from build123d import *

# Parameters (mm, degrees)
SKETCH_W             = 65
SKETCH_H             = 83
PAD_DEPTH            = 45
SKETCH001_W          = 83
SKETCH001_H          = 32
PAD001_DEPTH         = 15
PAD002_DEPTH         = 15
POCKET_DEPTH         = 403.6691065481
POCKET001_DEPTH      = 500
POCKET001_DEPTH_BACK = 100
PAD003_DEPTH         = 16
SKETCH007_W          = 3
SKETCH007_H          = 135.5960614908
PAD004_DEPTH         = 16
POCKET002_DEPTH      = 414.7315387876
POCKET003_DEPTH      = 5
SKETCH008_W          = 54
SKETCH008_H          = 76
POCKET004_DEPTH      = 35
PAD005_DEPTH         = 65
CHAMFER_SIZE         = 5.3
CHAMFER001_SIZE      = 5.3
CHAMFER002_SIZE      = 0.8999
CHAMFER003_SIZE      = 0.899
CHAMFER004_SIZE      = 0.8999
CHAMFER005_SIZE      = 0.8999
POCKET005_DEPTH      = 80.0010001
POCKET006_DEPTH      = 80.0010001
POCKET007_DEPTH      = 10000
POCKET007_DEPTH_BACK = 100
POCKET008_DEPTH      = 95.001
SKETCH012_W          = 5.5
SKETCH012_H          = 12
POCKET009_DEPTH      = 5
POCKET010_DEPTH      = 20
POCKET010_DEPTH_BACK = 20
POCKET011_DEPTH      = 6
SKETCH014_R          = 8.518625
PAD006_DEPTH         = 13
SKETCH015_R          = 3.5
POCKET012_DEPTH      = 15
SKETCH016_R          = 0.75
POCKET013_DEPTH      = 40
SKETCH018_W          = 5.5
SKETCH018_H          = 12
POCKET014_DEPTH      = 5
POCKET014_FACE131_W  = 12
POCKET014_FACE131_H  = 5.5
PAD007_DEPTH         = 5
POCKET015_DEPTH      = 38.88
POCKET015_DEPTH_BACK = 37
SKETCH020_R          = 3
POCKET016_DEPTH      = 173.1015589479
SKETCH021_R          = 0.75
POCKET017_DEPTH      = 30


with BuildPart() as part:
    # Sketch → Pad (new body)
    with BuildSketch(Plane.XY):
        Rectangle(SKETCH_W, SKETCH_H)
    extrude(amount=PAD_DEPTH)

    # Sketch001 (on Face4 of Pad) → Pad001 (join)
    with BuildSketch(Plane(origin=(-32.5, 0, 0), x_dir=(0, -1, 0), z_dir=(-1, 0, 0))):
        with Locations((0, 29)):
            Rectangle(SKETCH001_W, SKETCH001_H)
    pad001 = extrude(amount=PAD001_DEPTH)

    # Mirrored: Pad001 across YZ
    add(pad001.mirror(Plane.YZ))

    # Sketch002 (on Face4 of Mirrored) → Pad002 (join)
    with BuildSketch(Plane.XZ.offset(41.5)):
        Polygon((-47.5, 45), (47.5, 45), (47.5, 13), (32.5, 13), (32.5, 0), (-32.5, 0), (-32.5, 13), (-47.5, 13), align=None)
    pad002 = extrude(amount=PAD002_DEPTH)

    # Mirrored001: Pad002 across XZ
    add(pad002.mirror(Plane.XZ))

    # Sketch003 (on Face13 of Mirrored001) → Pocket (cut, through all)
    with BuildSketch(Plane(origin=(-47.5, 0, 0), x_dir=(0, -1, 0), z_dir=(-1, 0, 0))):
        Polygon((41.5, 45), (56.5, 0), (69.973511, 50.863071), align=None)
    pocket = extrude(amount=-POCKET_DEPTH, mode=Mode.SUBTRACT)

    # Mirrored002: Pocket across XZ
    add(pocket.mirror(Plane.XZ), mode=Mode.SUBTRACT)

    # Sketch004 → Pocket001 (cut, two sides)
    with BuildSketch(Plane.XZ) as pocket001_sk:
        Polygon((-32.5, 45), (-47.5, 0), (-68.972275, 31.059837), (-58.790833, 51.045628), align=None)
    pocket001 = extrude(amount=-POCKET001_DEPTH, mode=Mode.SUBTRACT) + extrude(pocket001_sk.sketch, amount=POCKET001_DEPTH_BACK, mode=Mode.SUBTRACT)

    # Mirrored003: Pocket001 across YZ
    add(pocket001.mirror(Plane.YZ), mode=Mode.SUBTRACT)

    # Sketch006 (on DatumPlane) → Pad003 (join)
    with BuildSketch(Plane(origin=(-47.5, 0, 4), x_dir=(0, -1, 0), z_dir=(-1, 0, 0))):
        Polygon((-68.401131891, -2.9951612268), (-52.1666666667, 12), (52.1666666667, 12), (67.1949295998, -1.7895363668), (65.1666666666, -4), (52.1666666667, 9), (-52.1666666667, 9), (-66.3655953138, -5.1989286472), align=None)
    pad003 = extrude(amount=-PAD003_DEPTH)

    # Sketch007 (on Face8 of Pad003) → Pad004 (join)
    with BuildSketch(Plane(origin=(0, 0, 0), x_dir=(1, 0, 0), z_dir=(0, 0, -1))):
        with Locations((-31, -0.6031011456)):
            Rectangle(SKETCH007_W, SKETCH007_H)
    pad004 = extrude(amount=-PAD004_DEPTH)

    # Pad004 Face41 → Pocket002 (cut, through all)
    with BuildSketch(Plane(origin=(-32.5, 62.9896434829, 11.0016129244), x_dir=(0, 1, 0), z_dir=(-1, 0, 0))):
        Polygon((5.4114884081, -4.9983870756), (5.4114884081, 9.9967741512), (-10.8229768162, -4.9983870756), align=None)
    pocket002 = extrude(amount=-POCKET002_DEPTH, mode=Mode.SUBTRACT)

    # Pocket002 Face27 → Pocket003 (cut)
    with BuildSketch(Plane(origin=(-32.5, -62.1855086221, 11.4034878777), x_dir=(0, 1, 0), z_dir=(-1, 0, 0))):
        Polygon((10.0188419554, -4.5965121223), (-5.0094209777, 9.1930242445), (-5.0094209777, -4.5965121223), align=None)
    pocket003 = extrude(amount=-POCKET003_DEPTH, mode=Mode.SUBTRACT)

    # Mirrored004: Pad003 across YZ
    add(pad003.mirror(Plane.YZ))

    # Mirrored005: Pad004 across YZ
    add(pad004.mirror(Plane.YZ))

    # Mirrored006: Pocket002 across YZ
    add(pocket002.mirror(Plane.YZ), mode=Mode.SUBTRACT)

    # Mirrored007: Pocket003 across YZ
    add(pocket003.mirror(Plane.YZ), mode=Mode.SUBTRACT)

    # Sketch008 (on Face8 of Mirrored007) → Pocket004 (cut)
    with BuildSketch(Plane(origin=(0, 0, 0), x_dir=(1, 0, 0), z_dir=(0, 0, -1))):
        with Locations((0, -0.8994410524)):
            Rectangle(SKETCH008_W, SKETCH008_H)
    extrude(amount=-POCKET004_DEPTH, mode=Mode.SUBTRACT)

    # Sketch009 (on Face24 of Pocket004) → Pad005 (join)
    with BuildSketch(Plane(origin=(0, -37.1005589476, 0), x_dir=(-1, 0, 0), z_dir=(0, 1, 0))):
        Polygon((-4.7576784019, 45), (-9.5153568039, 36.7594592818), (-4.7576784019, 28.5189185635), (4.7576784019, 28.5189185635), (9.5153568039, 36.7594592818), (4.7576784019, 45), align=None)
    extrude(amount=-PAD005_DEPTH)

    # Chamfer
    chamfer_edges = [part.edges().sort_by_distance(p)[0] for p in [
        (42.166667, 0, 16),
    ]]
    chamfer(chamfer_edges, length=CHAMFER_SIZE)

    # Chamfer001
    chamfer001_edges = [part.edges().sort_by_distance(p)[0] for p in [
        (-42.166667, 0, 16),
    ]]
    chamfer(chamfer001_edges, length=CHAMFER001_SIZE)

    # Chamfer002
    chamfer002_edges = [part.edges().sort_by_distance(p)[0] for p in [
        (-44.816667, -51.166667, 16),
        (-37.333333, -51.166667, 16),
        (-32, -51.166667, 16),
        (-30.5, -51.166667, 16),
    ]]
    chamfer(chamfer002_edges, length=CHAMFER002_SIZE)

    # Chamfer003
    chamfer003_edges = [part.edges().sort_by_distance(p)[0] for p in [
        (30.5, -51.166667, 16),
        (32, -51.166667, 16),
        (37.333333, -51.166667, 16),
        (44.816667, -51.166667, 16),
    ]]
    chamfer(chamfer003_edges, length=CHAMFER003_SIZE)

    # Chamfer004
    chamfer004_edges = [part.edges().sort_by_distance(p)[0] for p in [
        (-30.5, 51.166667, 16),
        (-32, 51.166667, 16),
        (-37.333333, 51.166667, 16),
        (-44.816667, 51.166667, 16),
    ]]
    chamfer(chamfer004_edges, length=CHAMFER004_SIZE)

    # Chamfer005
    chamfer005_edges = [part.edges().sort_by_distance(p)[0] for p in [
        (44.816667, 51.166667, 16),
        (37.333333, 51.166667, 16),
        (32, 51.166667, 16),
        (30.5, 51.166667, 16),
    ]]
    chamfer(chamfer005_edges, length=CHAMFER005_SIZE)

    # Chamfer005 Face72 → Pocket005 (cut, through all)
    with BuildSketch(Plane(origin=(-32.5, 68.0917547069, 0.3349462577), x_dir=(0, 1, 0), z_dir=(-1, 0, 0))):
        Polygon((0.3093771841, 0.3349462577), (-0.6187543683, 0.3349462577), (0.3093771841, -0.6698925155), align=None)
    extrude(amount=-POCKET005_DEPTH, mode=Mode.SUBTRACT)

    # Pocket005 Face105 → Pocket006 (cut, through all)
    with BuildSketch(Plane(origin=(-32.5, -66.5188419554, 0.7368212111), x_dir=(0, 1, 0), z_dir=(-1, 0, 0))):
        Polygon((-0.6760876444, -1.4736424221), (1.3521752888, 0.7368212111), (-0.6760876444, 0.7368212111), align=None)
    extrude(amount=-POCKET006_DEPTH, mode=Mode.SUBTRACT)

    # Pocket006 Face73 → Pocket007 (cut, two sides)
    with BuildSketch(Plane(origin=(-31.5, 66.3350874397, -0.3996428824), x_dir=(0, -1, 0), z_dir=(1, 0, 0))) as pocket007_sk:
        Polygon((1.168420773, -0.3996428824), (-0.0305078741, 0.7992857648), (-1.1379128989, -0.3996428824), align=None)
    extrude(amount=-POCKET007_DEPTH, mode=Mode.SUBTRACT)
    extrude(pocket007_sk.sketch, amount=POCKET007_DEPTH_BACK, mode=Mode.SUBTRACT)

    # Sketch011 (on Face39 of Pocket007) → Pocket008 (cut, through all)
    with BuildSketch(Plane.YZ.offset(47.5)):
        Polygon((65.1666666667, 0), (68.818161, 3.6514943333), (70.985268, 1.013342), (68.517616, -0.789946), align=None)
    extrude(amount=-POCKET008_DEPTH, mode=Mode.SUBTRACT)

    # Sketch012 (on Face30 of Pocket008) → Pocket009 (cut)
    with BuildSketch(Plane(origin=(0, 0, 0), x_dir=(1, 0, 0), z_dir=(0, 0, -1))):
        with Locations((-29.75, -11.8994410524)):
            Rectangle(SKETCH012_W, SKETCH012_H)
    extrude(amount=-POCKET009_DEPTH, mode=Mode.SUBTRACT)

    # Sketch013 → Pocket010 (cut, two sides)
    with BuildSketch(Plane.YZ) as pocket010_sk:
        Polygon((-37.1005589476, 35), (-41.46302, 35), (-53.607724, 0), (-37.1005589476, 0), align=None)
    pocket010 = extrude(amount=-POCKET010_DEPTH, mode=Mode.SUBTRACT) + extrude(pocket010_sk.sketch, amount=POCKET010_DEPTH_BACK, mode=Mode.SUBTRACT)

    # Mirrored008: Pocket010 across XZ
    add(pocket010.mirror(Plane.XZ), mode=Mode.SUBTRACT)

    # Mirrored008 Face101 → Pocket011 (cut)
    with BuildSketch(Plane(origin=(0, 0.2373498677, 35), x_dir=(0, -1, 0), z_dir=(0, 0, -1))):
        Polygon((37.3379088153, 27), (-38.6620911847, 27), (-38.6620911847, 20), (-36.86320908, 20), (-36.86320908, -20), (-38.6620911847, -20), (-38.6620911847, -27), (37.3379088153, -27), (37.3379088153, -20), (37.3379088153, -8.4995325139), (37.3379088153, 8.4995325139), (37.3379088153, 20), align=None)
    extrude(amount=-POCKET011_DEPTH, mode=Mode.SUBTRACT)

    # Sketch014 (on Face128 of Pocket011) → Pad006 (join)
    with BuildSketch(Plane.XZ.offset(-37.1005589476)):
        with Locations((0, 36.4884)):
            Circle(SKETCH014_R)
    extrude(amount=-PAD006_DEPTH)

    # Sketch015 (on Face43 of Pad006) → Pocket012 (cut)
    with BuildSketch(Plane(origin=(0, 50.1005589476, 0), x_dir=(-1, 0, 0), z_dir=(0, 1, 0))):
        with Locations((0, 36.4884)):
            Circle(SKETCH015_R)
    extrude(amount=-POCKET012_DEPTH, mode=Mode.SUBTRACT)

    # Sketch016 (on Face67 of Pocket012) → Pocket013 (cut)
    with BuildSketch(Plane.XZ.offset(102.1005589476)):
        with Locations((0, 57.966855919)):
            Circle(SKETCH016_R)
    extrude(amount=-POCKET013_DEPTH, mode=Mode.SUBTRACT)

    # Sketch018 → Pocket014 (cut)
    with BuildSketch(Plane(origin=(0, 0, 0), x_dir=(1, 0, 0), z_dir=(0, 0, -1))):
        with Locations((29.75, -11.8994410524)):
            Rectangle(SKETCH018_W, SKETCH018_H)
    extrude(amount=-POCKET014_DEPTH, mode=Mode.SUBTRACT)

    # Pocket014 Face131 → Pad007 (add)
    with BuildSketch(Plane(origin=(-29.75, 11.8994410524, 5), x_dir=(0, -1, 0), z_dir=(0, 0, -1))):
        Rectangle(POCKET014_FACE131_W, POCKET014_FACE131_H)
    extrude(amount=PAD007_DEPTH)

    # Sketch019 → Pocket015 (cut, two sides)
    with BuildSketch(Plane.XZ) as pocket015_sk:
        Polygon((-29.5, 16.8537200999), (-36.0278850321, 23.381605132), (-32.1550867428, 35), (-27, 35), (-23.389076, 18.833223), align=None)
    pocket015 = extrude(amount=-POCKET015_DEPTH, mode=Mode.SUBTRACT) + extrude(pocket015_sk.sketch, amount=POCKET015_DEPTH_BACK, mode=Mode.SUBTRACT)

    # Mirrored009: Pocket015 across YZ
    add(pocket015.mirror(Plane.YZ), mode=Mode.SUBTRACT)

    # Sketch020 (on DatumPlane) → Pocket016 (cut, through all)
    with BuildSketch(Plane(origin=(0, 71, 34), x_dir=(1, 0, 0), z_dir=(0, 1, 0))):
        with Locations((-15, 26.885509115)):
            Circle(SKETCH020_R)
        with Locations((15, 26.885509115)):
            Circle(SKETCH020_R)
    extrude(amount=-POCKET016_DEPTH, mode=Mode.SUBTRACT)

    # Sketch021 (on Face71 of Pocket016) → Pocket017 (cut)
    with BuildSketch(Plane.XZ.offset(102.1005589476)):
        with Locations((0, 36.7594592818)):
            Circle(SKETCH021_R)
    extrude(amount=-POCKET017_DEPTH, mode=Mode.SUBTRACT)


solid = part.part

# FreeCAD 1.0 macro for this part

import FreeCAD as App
import Part
import Sketcher

V = App.Vector
Q = App.Units.Quantity


def edges_at(feature, points):
    """Names of the edges that pass closest to the given points."""
    edges = feature.Shape.Edges
    near = lambda p: min(range(len(edges)), key=lambda i: edges[i].distToShape(Part.Vertex(*p))[0])
    return sorted({f"Edge{near(p) + 1}" for p in points})

doc = App.newDocument("Part")
body = doc.addObject("PartDesign::Body", "Body")

# Sketch on XY plane
sketch1 = body.newObject("Sketcher::SketchObject", "Sketch")
sketch1.AttachmentSupport = (doc.getObject("XY_Plane"), [""])
sketch1.MapMode = "FlatFace"
sketch1.addGeometry([
    Part.LineSegment(V(-32, 42, 0), V(-32, -42, 0)),
    Part.LineSegment(V(-32, -42, 0), V(32, -42, 0)),
    Part.LineSegment(V(32, -42, 0), V(32, 42, 0)),
    Part.LineSegment(V(32, 42, 0), V(-32, 42, 0)),
], False)
sketch1.addConstraint([
    Sketcher.Constraint("Coincident", 0, 2, 1, 1),
    Sketcher.Constraint("Coincident", 1, 2, 2, 1),
    Sketcher.Constraint("Coincident", 2, 2, 3, 1),
    Sketcher.Constraint("Coincident", 3, 2, 0, 1),
    Sketcher.Constraint("Vertical", 0),
    Sketcher.Constraint("Horizontal", 1),
    Sketcher.Constraint("Vertical", 2),
    Sketcher.Constraint("Horizontal", 3),
    Sketcher.Constraint("Symmetric", 0, 2, 2, 2, -1, 1),
    Sketcher.Constraint("DistanceX", 1, 1, 1, 2, Q("65 mm")),
    Sketcher.Constraint("DistanceY", 0, 2, 0, 1, Q("83 mm")),
])
pad1 = body.newObject("PartDesign::Pad", "Pad")
pad1.Profile = sketch1
pad1.Length = 45

# Sketch on YZ plane
sketch2 = body.newObject("Sketcher::SketchObject", "Sketch001")
sketch2.AttachmentSupport = (doc.getObject("YZ_Plane"), [""])
sketch2.MapMode = "FlatFace"
sketch2.AttachmentOffset = App.Placement(V(0, 0, -32.5), App.Rotation())
sketch2.addGeometry([
    Part.LineSegment(V(42, 45, 0), V(42, 13, 0)),
    Part.LineSegment(V(42, 13, 0), V(-42, 13, 0)),
    Part.LineSegment(V(-42, 13, 0), V(-42, 45, 0)),
    Part.LineSegment(V(-42, 45, 0), V(42, 45, 0)),
], False)
sketch2.addConstraint([
    Sketcher.Constraint("Coincident", 0, 2, 1, 1),
    Sketcher.Constraint("Coincident", 1, 2, 2, 1),
    Sketcher.Constraint("Coincident", 2, 2, 3, 1),
    Sketcher.Constraint("Coincident", 3, 2, 0, 1),
    Sketcher.Constraint("Vertical", 0),
    Sketcher.Constraint("Horizontal", 1),
    Sketcher.Constraint("Vertical", 2),
    Sketcher.Constraint("Horizontal", 3),
    Sketcher.Constraint("DistanceX", 1, 2, 1, 1, Q("83 mm")),
    Sketcher.Constraint("DistanceY", 0, 2, 0, 1, Q("32 mm")),
    Sketcher.Constraint("DistanceY", -1, 1, 0, 2, Q("13 mm")),
    Sketcher.Constraint("DistanceX", -1, 1, 0, 2, Q("41.5 mm")),
])
pad2 = body.newObject("PartDesign::Pad", "Pad001")
pad2.Profile = sketch2
pad2.Length = 15
pad2.Reversed = True
doc.recompute()

mirrored = body.newObject("PartDesign::Mirrored", "Mirrored")
mirrored.Originals = [pad2]
mirrored.MirrorPlane = (doc.getObject("YZ_Plane"), [""])
body.Tip = mirrored

# Sketch on XZ plane
sketch3 = body.newObject("Sketcher::SketchObject", "Sketch002")
sketch3.AttachmentSupport = (doc.getObject("XZ_Plane"), [""])
sketch3.MapMode = "FlatFace"
sketch3.AttachmentOffset = App.Placement(V(0, 0, 41.5), App.Rotation())
sketch3.addGeometry([
    Part.LineSegment(V(48, 45, 0), V(-48, 45, 0)),  # 0
    Part.LineSegment(V(-48, 45, 0), V(-48, 13, 0)),  # 1
    Part.LineSegment(V(-48, 13, 0), V(-32, 13, 0)),  # 2
    Part.LineSegment(V(-32, 13, 0), V(-32, 0, 0)),  # 3
    Part.LineSegment(V(-32, 0, 0), V(32, 0, 0)),  # 4
    Part.LineSegment(V(32, 0, 0), V(32, 13, 0)),  # 5
    Part.LineSegment(V(32, 13, 0), V(48, 13, 0)),  # 6
    Part.LineSegment(V(48, 13, 0), V(48, 45, 0)),  # 7
], False)
sketch3.addConstraint([
    Sketcher.Constraint("Coincident", 0, 2, 1, 1),
    Sketcher.Constraint("Coincident", 1, 2, 2, 1),
    Sketcher.Constraint("Coincident", 2, 2, 3, 1),
    Sketcher.Constraint("Coincident", 3, 2, 4, 1),
    Sketcher.Constraint("Coincident", 4, 2, 5, 1),
    Sketcher.Constraint("Coincident", 5, 2, 6, 1),
    Sketcher.Constraint("Coincident", 6, 2, 7, 1),
    Sketcher.Constraint("Coincident", 7, 2, 0, 1),
    Sketcher.Constraint("Horizontal", 0),
    Sketcher.Constraint("Vertical", 1),
    Sketcher.Constraint("Horizontal", 2),
    Sketcher.Constraint("Vertical", 3),
    Sketcher.Constraint("Horizontal", 4),
    Sketcher.Constraint("Vertical", 5),
    Sketcher.Constraint("Horizontal", 6),
    Sketcher.Constraint("Vertical", 7),
    Sketcher.Constraint("Symmetric", 3, 2, 4, 2, -1, 1),
    Sketcher.Constraint("Symmetric", 1, 2, 6, 2, -2),
    Sketcher.Constraint("DistanceX", 0, 2, 0, 1, Q("95 mm")),
    Sketcher.Constraint("DistanceX", 2, 1, 2, 2, Q("15 mm")),
    Sketcher.Constraint("DistanceY", 1, 2, 1, 1, Q("32 mm")),
    Sketcher.Constraint("DistanceY", 3, 2, 3, 1, Q("13 mm")),
])
pad3 = body.newObject("PartDesign::Pad", "Pad002")
pad3.Profile = sketch3
pad3.Length = 15
doc.recompute()

mirrored2 = body.newObject("PartDesign::Mirrored", "Mirrored001")
mirrored2.Originals = [pad3]
mirrored2.MirrorPlane = (doc.getObject("XZ_Plane"), [""])
body.Tip = mirrored2

# Sketch on YZ plane
sketch4 = body.newObject("Sketcher::SketchObject", "Sketch003")
sketch4.AttachmentSupport = (doc.getObject("YZ_Plane"), [""])
sketch4.MapMode = "FlatFace"
sketch4.AttachmentOffset = App.Placement(V(0, 0, -47.5), App.Rotation())
sketch4.addGeometry([
    Part.LineSegment(V(-42, 45, 0), V(-56, 0, 0)),
    Part.LineSegment(V(-56, 0, 0), V(-70, 51, 0)),
    Part.LineSegment(V(-70, 51, 0), V(-42, 45, 0)),
], False)
sketch4.addConstraint([
    Sketcher.Constraint("Coincident", 0, 2, 1, 1),
    Sketcher.Constraint("Coincident", 1, 2, 2, 1),
    Sketcher.Constraint("Coincident", 2, 2, 0, 1),
    Sketcher.Constraint("PointOnObject", 0, 2, -1),
    Sketcher.Constraint("DistanceY", -1, 1, 2, 2, Q("45 mm")),
    Sketcher.Constraint("DistanceX", 0, 2, 2, 2, Q("15 mm")),
    Sketcher.Constraint("DistanceX", 0, 2, -1, 1, Q("56.5 mm")),
    Sketcher.Constraint("Distance", 1, Q("52.617369 mm")),
    Sketcher.Constraint("DistanceX", 1, 2, -1, 1, Q("69.973511 mm")),
])
pocket1 = body.newObject("PartDesign::Pocket", "Pocket")
pocket1.Profile = sketch4
pocket1.Type = "ThroughAll"
pocket1.Reversed = True
doc.recompute()

mirrored3 = body.newObject("PartDesign::Mirrored", "Mirrored002")
mirrored3.Originals = [pocket1]
mirrored3.MirrorPlane = (doc.getObject("XZ_Plane"), [""])
body.Tip = mirrored3

# Sketch on XZ plane
sketch5 = body.newObject("Sketcher::SketchObject", "Sketch004")
sketch5.AttachmentSupport = (doc.getObject("XZ_Plane"), [""])
sketch5.MapMode = "FlatFace"
sketch5.addGeometry([
    Part.LineSegment(V(-48, 0, 0), V(-32, 45, 0)),
    Part.LineSegment(V(-32, 45, 0), V(-59, 51, 0)),
    Part.LineSegment(V(-59, 51, 0), V(-69, 31, 0)),
    Part.LineSegment(V(-69, 31, 0), V(-48, 0, 0)),
], False)
sketch5.addConstraint([
    Sketcher.Constraint("Coincident", 0, 2, 1, 1),
    Sketcher.Constraint("Coincident", 1, 2, 2, 1),
    Sketcher.Constraint("Coincident", 2, 2, 3, 1),
    Sketcher.Constraint("Coincident", 3, 2, 0, 1),
    Sketcher.Constraint("PointOnObject", 3, 2, -1),
    Sketcher.Constraint("DistanceY", -1, 1, 0, 2, Q("45 mm")),
    Sketcher.Constraint("DistanceX", 3, 2, 0, 2, Q("15 mm")),
    Sketcher.Constraint("DistanceX", 0, 2, -1, 1, Q("32.5 mm")),
    Sketcher.Constraint("Distance", 1, Q("26.976981 mm")),
    Sketcher.Constraint("Distance", 2, Q("22.429748 mm")),
    Sketcher.Constraint("DistanceY", 0, 2, 1, 2, Q("6.045628 mm")),
    Sketcher.Constraint("DistanceX", 2, 2, 1, 2, Q("10.181442 mm")),
])
pocket2 = body.newObject("PartDesign::Pocket", "Pocket001")
pocket2.Profile = sketch5
pocket2.Type = "ThroughAll"
pocket2.Midplane = True
doc.recompute()

mirrored4 = body.newObject("PartDesign::Mirrored", "Mirrored003")
mirrored4.Originals = [pocket2]
mirrored4.MirrorPlane = (doc.getObject("YZ_Plane"), [""])
body.Tip = mirrored4

# Sketch on YZ plane
sketch6 = body.newObject("Sketcher::SketchObject", "Sketch005")
sketch6.AttachmentSupport = (doc.getObject("YZ_Plane"), [""])
sketch6.MapMode = "FlatFace"
sketch6.AttachmentOffset = App.Placement(V(0, 0, -47.5), App.Rotation())
sketch6.addGeometry([
    Part.LineSegment(V(52.2, 16, 0), V(68.4, 1, 0)),  # 0
    Part.LineSegment(V(68.4, 1, 0), V(66.4, -1.2, 0)),  # 1
    Part.LineSegment(V(66.4, -1.2, 0), V(52.2, 13, 0)),  # 2
    Part.LineSegment(V(52.2, 13, 0), V(-52.2, 13, 0)),  # 3
    Part.LineSegment(V(-52.2, 13, 0), V(-65.2, 0, 0)),  # 4
    Part.LineSegment(V(-65.2, 0, 0), V(-67.2, 2.2, 0)),  # 5
    Part.LineSegment(V(-67.2, 2.2, 0), V(-52.2, 16, 0)),  # 6
    Part.LineSegment(V(-52.2, 16, 0), V(52.2, 16, 0)),  # 7
], False)
sketch6.addConstraint([
    Sketcher.Constraint("Coincident", 0, 2, 1, 1),
    Sketcher.Constraint("Coincident", 1, 2, 2, 1),
    Sketcher.Constraint("Coincident", 2, 2, 3, 1),
    Sketcher.Constraint("Coincident", 3, 2, 4, 1),
    Sketcher.Constraint("Coincident", 4, 2, 5, 1),
    Sketcher.Constraint("Coincident", 5, 2, 6, 1),
    Sketcher.Constraint("Coincident", 6, 2, 7, 1),
    Sketcher.Constraint("Coincident", 7, 2, 0, 1),
    Sketcher.Constraint("Horizontal", 3),
    Sketcher.Constraint("Horizontal", 7),
    Sketcher.Constraint("PointOnObject", 4, 2, -1),
    Sketcher.Constraint("Perpendicular", 0, 1),
    Sketcher.Constraint("Perpendicular", 2, 4),
    Sketcher.Constraint("Perpendicular", 5, 6),
    Sketcher.Constraint("Vertical", 3, 2, 6, 2),
    Sketcher.Constraint("Vertical", 2, 2, 7, 2),
    Sketcher.Constraint("Equal", 1, 5),
    Sketcher.Constraint("Angle", 2, Q("135 deg")),
    Sketcher.Constraint("Distance", 1, Q("3 mm")),
    Sketcher.Constraint("DistanceY", -1, 1, 2, 2, Q("13 mm")),
    Sketcher.Constraint("DistanceY", -1, 1, 6, 2, Q("16 mm")),
    Sketcher.Constraint("DistanceX", 3, 2, 0, 2, Q("120.567799 mm")),
    Sketcher.Constraint("Distance", 0, Q("22.100062 mm")),
    Sketcher.Constraint("DistanceX", -1, 1, 0, 2, Q("68.401132 mm")),
])
pad4 = body.newObject("PartDesign::Pad", "Pad003")
pad4.Profile = sketch6
pad4.Length = 16

# Sketch on XY plane
sketch7 = body.newObject("Sketcher::SketchObject", "Sketch006")
sketch7.AttachmentSupport = (doc.getObject("XY_Plane"), [""])
sketch7.MapMode = "FlatFace"
sketch7.addGeometry([
    Part.LineSegment(V(-32.5, -67.2, 0), V(-32.5, 68.4, 0)),
    Part.LineSegment(V(-32.5, 68.4, 0), V(-29.5, 68.4, 0)),
    Part.LineSegment(V(-29.5, 68.4, 0), V(-29.5, -67.2, 0)),
    Part.LineSegment(V(-29.5, -67.2, 0), V(-32.5, -67.2, 0)),
], False)
sketch7.addConstraint([
    Sketcher.Constraint("Coincident", 0, 2, 1, 1),
    Sketcher.Constraint("Coincident", 1, 2, 2, 1),
    Sketcher.Constraint("Coincident", 2, 2, 3, 1),
    Sketcher.Constraint("Coincident", 3, 2, 0, 1),
    Sketcher.Constraint("Vertical", 0),
    Sketcher.Constraint("Horizontal", 1),
    Sketcher.Constraint("Vertical", 2),
    Sketcher.Constraint("Horizontal", 3),
    Sketcher.Constraint("DistanceX", 1, 1, 1, 2, Q("3 mm")),
    Sketcher.Constraint("DistanceX", 0, 2, -1, 1, Q("32.5 mm")),
    Sketcher.Constraint("DistanceY", 0, 1, 0, 2, Q("135.596061 mm")),
    Sketcher.Constraint("DistanceY", -1, 1, 0, 2, Q("68.401132 mm")),
])
pad5 = body.newObject("PartDesign::Pad", "Pad004")
pad5.Profile = sketch7
pad5.Length = 16

# Sketch on YZ plane
sketch8 = body.newObject("Sketcher::SketchObject", "Sketch007")
sketch8.AttachmentSupport = (doc.getObject("YZ_Plane"), [""])
sketch8.MapMode = "FlatFace"
sketch8.AttachmentOffset = App.Placement(V(0, 0, -32.5), App.Rotation())
sketch8.addGeometry([
    Part.LineSegment(V(68, 16, 0), V(68, 1, 0)),
    Part.LineSegment(V(68, 1, 0), V(52, 16, 0)),
    Part.LineSegment(V(52, 16, 0), V(68, 16, 0)),
], False)
sketch8.addConstraint([
    Sketcher.Constraint("Coincident", 0, 2, 1, 1),
    Sketcher.Constraint("Coincident", 1, 2, 2, 1),
    Sketcher.Constraint("Coincident", 2, 2, 0, 1),
    Sketcher.Constraint("Vertical", 0),
    Sketcher.Constraint("Horizontal", 2),
    Sketcher.Constraint("DistanceY", -1, 1, 1, 2, Q("16 mm")),
    Sketcher.Constraint("DistanceY", 0, 2, 0, 1, Q("14.995161 mm")),
    Sketcher.Constraint("Distance", 1, Q("22.100062 mm")),
    Sketcher.Constraint("DistanceX", -1, 1, 0, 2, Q("68.401132 mm")),
])
pocket3 = body.newObject("PartDesign::Pocket", "Pocket002")
pocket3.Profile = sketch8
pocket3.Type = "ThroughAll"
pocket3.Reversed = True

# Sketch on YZ plane
sketch9 = body.newObject("Sketcher::SketchObject", "Sketch008")
sketch9.AttachmentSupport = (doc.getObject("YZ_Plane"), [""])
sketch9.MapMode = "FlatFace"
sketch9.AttachmentOffset = App.Placement(V(0, 0, -32.5), App.Rotation())
sketch9.addGeometry([
    Part.LineSegment(V(-52, 16, 0), V(-67, 2, 0)),
    Part.LineSegment(V(-67, 2, 0), V(-67, 16, 0)),
    Part.LineSegment(V(-67, 16, 0), V(-52, 16, 0)),
], False)
sketch9.addConstraint([
    Sketcher.Constraint("Coincident", 0, 2, 1, 1),
    Sketcher.Constraint("Coincident", 1, 2, 2, 1),
    Sketcher.Constraint("Coincident", 2, 2, 0, 1),
    Sketcher.Constraint("Vertical", 1),
    Sketcher.Constraint("Horizontal", 2),
    Sketcher.Constraint("DistanceY", -1, 1, 1, 2, Q("16 mm")),
    Sketcher.Constraint("Distance", 0, Q("20.396078 mm")),
    Sketcher.Constraint("DistanceX", 2, 1, 2, 2, Q("15.028263 mm")),
    Sketcher.Constraint("DistanceX", 0, 2, -1, 1, Q("67.19493 mm")),
])
pocket4 = body.newObject("PartDesign::Pocket", "Pocket003")
pocket4.Profile = sketch9
pocket4.Length = 5
pocket4.Reversed = True
doc.recompute()

mirrored5 = body.newObject("PartDesign::Mirrored", "Mirrored004")
mirrored5.Originals = [pad4]
mirrored5.MirrorPlane = (doc.getObject("YZ_Plane"), [""])
body.Tip = mirrored5
doc.recompute()

mirrored6 = body.newObject("PartDesign::Mirrored", "Mirrored005")
mirrored6.Originals = [pad5]
mirrored6.MirrorPlane = (doc.getObject("YZ_Plane"), [""])
body.Tip = mirrored6
doc.recompute()

mirrored7 = body.newObject("PartDesign::Mirrored", "Mirrored006")
mirrored7.Originals = [pocket3]
mirrored7.MirrorPlane = (doc.getObject("YZ_Plane"), [""])
body.Tip = mirrored7
doc.recompute()

mirrored8 = body.newObject("PartDesign::Mirrored", "Mirrored007")
mirrored8.Originals = [pocket4]
mirrored8.MirrorPlane = (doc.getObject("YZ_Plane"), [""])
body.Tip = mirrored8

# Sketch on XY plane
sketch10 = body.newObject("Sketcher::SketchObject", "Sketch009")
sketch10.AttachmentSupport = (doc.getObject("XY_Plane"), [""])
sketch10.MapMode = "FlatFace"
sketch10.addGeometry([
    Part.LineSegment(V(-27, -37, 0), V(-27, 39, 0)),
    Part.LineSegment(V(-27, 39, 0), V(27, 39, 0)),
    Part.LineSegment(V(27, 39, 0), V(27, -37, 0)),
    Part.LineSegment(V(27, -37, 0), V(-27, -37, 0)),
], False)
sketch10.addConstraint([
    Sketcher.Constraint("Coincident", 0, 2, 1, 1),
    Sketcher.Constraint("Coincident", 1, 2, 2, 1),
    Sketcher.Constraint("Coincident", 2, 2, 3, 1),
    Sketcher.Constraint("Coincident", 3, 2, 0, 1),
    Sketcher.Constraint("Vertical", 0),
    Sketcher.Constraint("Horizontal", 1),
    Sketcher.Constraint("Vertical", 2),
    Sketcher.Constraint("Horizontal", 3),
    Sketcher.Constraint("DistanceX", 1, 1, 1, 2, Q("54 mm")),
    Sketcher.Constraint("DistanceY", 0, 1, 0, 2, Q("76 mm")),
    Sketcher.Constraint("DistanceX", 0, 2, -1, 1, Q("27 mm")),
    Sketcher.Constraint("DistanceY", -1, 1, 0, 2, Q("38.899441 mm")),
])
pocket5 = body.newObject("PartDesign::Pocket", "Pocket004")
pocket5.Profile = sketch10
pocket5.Length = 35
pocket5.Reversed = True

# Sketch on XZ plane
sketch11 = body.newObject("Sketcher::SketchObject", "Sketch010")
sketch11.AttachmentSupport = (doc.getObject("XZ_Plane"), [""])
sketch11.MapMode = "FlatFace"
sketch11.AttachmentOffset = App.Placement(V(0, 0, 37.100559), App.Rotation())
sketch11.addGeometry([
    Part.LineSegment(V(5, 45, 0), V(10, 37, 0)),  # 0
    Part.LineSegment(V(10, 37, 0), V(5, 29, 0)),  # 1
    Part.LineSegment(V(5, 29, 0), V(-5, 29, 0)),  # 2
    Part.LineSegment(V(-5, 29, 0), V(-10, 37, 0)),  # 3
    Part.LineSegment(V(-10, 37, 0), V(-5, 45, 0)),  # 4
    Part.LineSegment(V(-5, 45, 0), V(5, 45, 0)),  # 5
], False)
sketch11.addConstraint([
    Sketcher.Constraint("Coincident", 0, 2, 1, 1),
    Sketcher.Constraint("Coincident", 1, 2, 2, 1),
    Sketcher.Constraint("Coincident", 2, 2, 3, 1),
    Sketcher.Constraint("Coincident", 3, 2, 4, 1),
    Sketcher.Constraint("Coincident", 4, 2, 5, 1),
    Sketcher.Constraint("Coincident", 5, 2, 0, 1),
    Sketcher.Constraint("Horizontal", 2),
    Sketcher.Constraint("Horizontal", 5),
    Sketcher.Constraint("Symmetric", 0, 2, 3, 2, -2),
    Sketcher.Constraint("Parallel", 0, 3),
    Sketcher.Constraint("Parallel", 1, 4),
    Sketcher.Constraint("Vertical", 2, 2, 4, 2),
    Sketcher.Constraint("Vertical", 1, 2, 5, 2),
    Sketcher.Constraint("Angle", 0, Q("-60 deg")),
    Sketcher.Constraint("DistanceY", -1, 1, 4, 2, Q("45 mm")),
    Sketcher.Constraint("DistanceX", 2, 2, 2, 1, Q("9.515357 mm")),
    Sketcher.Constraint("DistanceY", -1, 1, 0, 2, Q("36.759459 mm")),
])
pad6 = body.newObject("PartDesign::Pad", "Pad005")
pad6.Profile = sketch11
pad6.Length = 65
doc.recompute()

chamfer = body.newObject("PartDesign::Chamfer", "Chamfer")
chamfer.Base = (pad6, edges_at(pad6, [(42.167, 0, 16)]))
chamfer.Size = 5.3
doc.recompute()

chamfer2 = body.newObject("PartDesign::Chamfer", "Chamfer001")
chamfer2.Base = (chamfer, edges_at(chamfer, [(-42.167, 0, 16)]))
chamfer2.Size = 5.3
doc.recompute()

chamfer3 = body.newObject("PartDesign::Chamfer", "Chamfer002")
chamfer3.Base = (chamfer2, edges_at(chamfer2, [
    (-38.483, -51.167, 16),
    (-38.483, -51.167, 16),
    (-38.483, -51.167, 16),
    (-38.483, -51.167, 16),
]))
chamfer3.Size = 0.8999
doc.recompute()

chamfer4 = body.newObject("PartDesign::Chamfer", "Chamfer003")
chamfer4.Base = (chamfer3, edges_at(chamfer3, [
    (38.483, -51.167, 16),
    (38.483, -51.167, 16),
    (38.483, -51.167, 16),
    (38.483, -51.167, 16),
]))
chamfer4.Size = 0.899
doc.recompute()

chamfer5 = body.newObject("PartDesign::Chamfer", "Chamfer004")
chamfer5.Base = (chamfer4, edges_at(chamfer4, [
    (-38.483, 51.167, 16),
    (-38.483, 51.167, 16),
    (-38.483, 51.167, 16),
    (-38.483, 51.167, 16),
]))
chamfer5.Size = 0.8999
doc.recompute()

chamfer6 = body.newObject("PartDesign::Chamfer", "Chamfer005")
chamfer6.Base = (chamfer5, edges_at(chamfer5, [
    (38.483, 51.167, 16),
    (38.483, 51.167, 16),
    (38.483, 51.167, 16),
    (38.483, 51.167, 16),
]))
chamfer6.Size = 0.8999

# Sketch on YZ plane
sketch12 = body.newObject("Sketcher::SketchObject", "Sketch011")
sketch12.AttachmentSupport = (doc.getObject("YZ_Plane"), [""])
sketch12.MapMode = "FlatFace"
sketch12.AttachmentOffset = App.Placement(V(0, 0, -32.5), App.Rotation())
sketch12.addGeometry([
    Part.LineSegment(V(68.4, 0, 0), V(67.5, 0, 0)),
    Part.LineSegment(V(67.5, 0, 0), V(68.4, 1, 0)),
    Part.LineSegment(V(68.4, 1, 0), V(68.4, 0, 0)),
], False)
sketch12.addConstraint([
    Sketcher.Constraint("Coincident", 0, 2, 1, 1),
    Sketcher.Constraint("Coincident", 1, 2, 2, 1),
    Sketcher.Constraint("Coincident", 2, 2, 0, 1),
    Sketcher.Constraint("Horizontal", 0),
    Sketcher.Constraint("Vertical", 2),
    Sketcher.Constraint("PointOnObject", 0, 2, -1),
    Sketcher.Constraint("DistanceX", -1, 1, 0, 2, Q("67.473 mm")),
    Sketcher.Constraint("DistanceX", 0, 2, 0, 1, Q("0.928132 mm")),
    Sketcher.Constraint("DistanceY", 2, 2, 2, 1, Q("1.004839 mm")),
])
pocket6 = body.newObject("PartDesign::Pocket", "Pocket005")
pocket6.Profile = sketch12
pocket6.Type = "ThroughAll"
pocket6.Reversed = True

# Sketch on YZ plane
sketch13 = body.newObject("Sketcher::SketchObject", "Sketch012")
sketch13.AttachmentSupport = (doc.getObject("YZ_Plane"), [""])
sketch13.MapMode = "FlatFace"
sketch13.AttachmentOffset = App.Placement(V(0, 0, -32.5), App.Rotation())
sketch13.addGeometry([
    Part.LineSegment(V(-67.2, 2.2, 0), V(-65.2, 0, 0)),
    Part.LineSegment(V(-65.2, 0, 0), V(-67.2, 0, 0)),
    Part.LineSegment(V(-67.2, 0, 0), V(-67.2, 2.2, 0)),
], False)
sketch13.addConstraint([
    Sketcher.Constraint("Coincident", 0, 2, 1, 1),
    Sketcher.Constraint("Coincident", 1, 2, 2, 1),
    Sketcher.Constraint("Coincident", 2, 2, 0, 1),
    Sketcher.Constraint("Horizontal", 1),
    Sketcher.Constraint("Vertical", 2),
    Sketcher.Constraint("PointOnObject", 0, 2, -1),
    Sketcher.Constraint("Distance", 0, Q("3 mm")),
    Sketcher.Constraint("DistanceX", 1, 2, 1, 1, Q("2.028263 mm")),
    Sketcher.Constraint("DistanceX", 1, 2, -1, 1, Q("67.19493 mm")),
])
pocket7 = body.newObject("PartDesign::Pocket", "Pocket006")
pocket7.Profile = sketch13
pocket7.Type = "ThroughAll"
pocket7.Reversed = True

# Sketch on YZ plane
sketch14 = body.newObject("Sketcher::SketchObject", "Sketch013")
sketch14.AttachmentSupport = (doc.getObject("YZ_Plane"), [""])
sketch14.MapMode = "FlatFace"
sketch14.AttachmentOffset = App.Placement(V(0, 0, -31.5), App.Rotation())
sketch14.addGeometry([
    Part.LineSegment(V(65.2, 0, 0), V(66.4, -1.2, 0)),
    Part.LineSegment(V(66.4, -1.2, 0), V(67.5, 0, 0)),
    Part.LineSegment(V(67.5, 0, 0), V(65.2, 0, 0)),
], False)
sketch14.addConstraint([
    Sketcher.Constraint("Coincident", 0, 2, 1, 1),
    Sketcher.Constraint("Coincident", 1, 2, 2, 1),
    Sketcher.Constraint("Coincident", 2, 2, 0, 1),
    Sketcher.Constraint("Horizontal", 2),
    Sketcher.Constraint("PointOnObject", 1, 2, -1),
    Sketcher.Constraint("Angle", 0, Q("-45 deg")),
    Sketcher.Constraint("DistanceX", -1, 1, 1, 2, Q("67.473 mm")),
    Sketcher.Constraint("Distance", 0, Q("1.695541 mm")),
    Sketcher.Constraint("DistanceX", 2, 2, 2, 1, Q("2.306334 mm")),
])
pocket8 = body.newObject("PartDesign::Pocket", "Pocket007")
pocket8.Profile = sketch14
pocket8.Type = "ThroughAll"
pocket8.Midplane = True

# Sketch on YZ plane
sketch15 = body.newObject("Sketcher::SketchObject", "Sketch014")
sketch15.AttachmentSupport = (doc.getObject("YZ_Plane"), [""])
sketch15.MapMode = "FlatFace"
sketch15.AttachmentOffset = App.Placement(V(0, 0, 47.5), App.Rotation())
sketch15.addGeometry([
    Part.LineSegment(V(68.8, 3.7, 0), V(65.2, 0, 0)),
    Part.LineSegment(V(65.2, 0, 0), V(68.5, -0.8, 0)),
    Part.LineSegment(V(68.5, -0.8, 0), V(71, 1, 0)),
    Part.LineSegment(V(71, 1, 0), V(68.8, 3.7, 0)),
], False)
sketch15.addConstraint([
    Sketcher.Constraint("Coincident", 0, 2, 1, 1),
    Sketcher.Constraint("Coincident", 1, 2, 2, 1),
    Sketcher.Constraint("Coincident", 2, 2, 3, 1),
    Sketcher.Constraint("Coincident", 3, 2, 0, 1),
    Sketcher.Constraint("PointOnObject", 0, 2, -1),
    Sketcher.Constraint("Angle", 0, Q("-135 deg")),
    Sketcher.Constraint("Distance", 1, Q("3.442801 mm")),
    Sketcher.Constraint("DistanceX", 0, 2, 2, 2, Q("5.818601 mm")),
    Sketcher.Constraint("Distance", 2, Q("3.05633 mm")),
    Sketcher.Constraint("DistanceX", -1, 1, 2, 2, Q("70.985268 mm")),
    Sketcher.Constraint("DistanceX", -1, 1, 3, 2, Q("68.818161 mm")),
    Sketcher.Constraint("DistanceX", 0, 2, 1, 2, Q("3.350949 mm")),
])
pocket9 = body.newObject("PartDesign::Pocket", "Pocket008")
pocket9.Profile = sketch15
pocket9.Type = "ThroughAll"

# Sketch on XY plane
sketch16 = body.newObject("Sketcher::SketchObject", "Sketch015")
sketch16.AttachmentSupport = (doc.getObject("XY_Plane"), [""])
sketch16.MapMode = "FlatFace"
sketch16.addGeometry([
    Part.LineSegment(V(-32, 6, 0), V(-32, 18, 0)),
    Part.LineSegment(V(-32, 18, 0), V(-27, 18, 0)),
    Part.LineSegment(V(-27, 18, 0), V(-27, 6, 0)),
    Part.LineSegment(V(-27, 6, 0), V(-32, 6, 0)),
], False)
sketch16.addConstraint([
    Sketcher.Constraint("Coincident", 0, 2, 1, 1),
    Sketcher.Constraint("Coincident", 1, 2, 2, 1),
    Sketcher.Constraint("Coincident", 2, 2, 3, 1),
    Sketcher.Constraint("Coincident", 3, 2, 0, 1),
    Sketcher.Constraint("Vertical", 0),
    Sketcher.Constraint("Horizontal", 1),
    Sketcher.Constraint("Vertical", 2),
    Sketcher.Constraint("Horizontal", 3),
    Sketcher.Constraint("DistanceY", 0, 1, 0, 2, Q("12 mm")),
    Sketcher.Constraint("DistanceX", 1, 1, 1, 2, Q("5.5 mm")),
    Sketcher.Constraint("DistanceX", 1, 2, -1, 1, Q("27 mm")),
    Sketcher.Constraint("DistanceY", -1, 1, 0, 2, Q("17.899441 mm")),
])
pocket10 = body.newObject("PartDesign::Pocket", "Pocket009")
pocket10.Profile = sketch16
pocket10.Length = 5
pocket10.Reversed = True

# Sketch on YZ plane
sketch17 = body.newObject("Sketcher::SketchObject", "Sketch016")
sketch17.AttachmentSupport = (doc.getObject("YZ_Plane"), [""])
sketch17.MapMode = "FlatFace"
sketch17.addGeometry([
    Part.LineSegment(V(-37.1, 35, 0), V(-41.5, 35, 0)),
    Part.LineSegment(V(-41.5, 35, 0), V(-53.6, 0, 0)),
    Part.LineSegment(V(-53.6, 0, 0), V(-37.1, 0, 0)),
    Part.LineSegment(V(-37.1, 0, 0), V(-37.1, 35, 0)),
], False)
sketch17.addConstraint([
    Sketcher.Constraint("Coincident", 0, 2, 1, 1),
    Sketcher.Constraint("Coincident", 1, 2, 2, 1),
    Sketcher.Constraint("Coincident", 2, 2, 3, 1),
    Sketcher.Constraint("Coincident", 3, 2, 0, 1),
    Sketcher.Constraint("Horizontal", 0),
    Sketcher.Constraint("Horizontal", 2),
    Sketcher.Constraint("Vertical", 3),
    Sketcher.Constraint("PointOnObject", 1, 2, -1),
    Sketcher.Constraint("DistanceY", 3, 1, 3, 2, Q("35 mm")),
    Sketcher.Constraint("DistanceX", 0, 2, 0, 1, Q("4.362461 mm")),
    Sketcher.Constraint("DistanceX", 2, 1, 2, 2, Q("16.507165 mm")),
    Sketcher.Constraint("DistanceX", 0, 2, -1, 1, Q("41.46302 mm")),
])
pocket11 = body.newObject("PartDesign::Pocket", "Pocket010")
pocket11.Profile = sketch17
pocket11.Type = "TwoLengths"
pocket11.Length = 20
pocket11.Length2 = 20
doc.recompute()

mirrored9 = body.newObject("PartDesign::Mirrored", "Mirrored008")
mirrored9.Originals = [pocket11]
mirrored9.MirrorPlane = (doc.getObject("XZ_Plane"), [""])
body.Tip = mirrored9

# Sketch on XY plane
sketch18 = body.newObject("Sketcher::SketchObject", "Sketch017")
sketch18.AttachmentSupport = (doc.getObject("XY_Plane"), [""])
sketch18.MapMode = "FlatFace"
sketch18.AttachmentOffset = App.Placement(V(0, 0, 35), App.Rotation())
sketch18.addGeometry([
    Part.LineSegment(V(-27, -37.1, 0), V(-27, 38.9, 0)),  # 0
    Part.LineSegment(V(-27, 38.9, 0), V(-20, 38.9, 0)),  # 1
    Part.LineSegment(V(-20, 38.9, 0), V(-20, 37.1, 0)),  # 2
    Part.LineSegment(V(-20, 37.1, 0), V(20, 37.1, 0)),  # 3
    Part.LineSegment(V(20, 37.1, 0), V(20, 38.9, 0)),  # 4
    Part.LineSegment(V(20, 38.9, 0), V(27, 38.9, 0)),  # 5
    Part.LineSegment(V(27, 38.9, 0), V(27, -37.1, 0)),  # 6
    Part.LineSegment(V(27, -37.1, 0), V(-27, -37.1, 0)),  # 7
], False)
sketch18.addConstraint([
    Sketcher.Constraint("Coincident", 0, 2, 1, 1),
    Sketcher.Constraint("Coincident", 1, 2, 2, 1),
    Sketcher.Constraint("Coincident", 2, 2, 3, 1),
    Sketcher.Constraint("Coincident", 3, 2, 4, 1),
    Sketcher.Constraint("Coincident", 4, 2, 5, 1),
    Sketcher.Constraint("Coincident", 5, 2, 6, 1),
    Sketcher.Constraint("Coincident", 6, 2, 7, 1),
    Sketcher.Constraint("Coincident", 7, 2, 0, 1),
    Sketcher.Constraint("Vertical", 0),
    Sketcher.Constraint("Horizontal", 1),
    Sketcher.Constraint("Vertical", 2),
    Sketcher.Constraint("Horizontal", 3),
    Sketcher.Constraint("Vertical", 4),
    Sketcher.Constraint("Horizontal", 5),
    Sketcher.Constraint("Vertical", 6),
    Sketcher.Constraint("Horizontal", 7),
    Sketcher.Constraint("Symmetric", 1, 2, 4, 2, -2),
    Sketcher.Constraint("Equal", 1, 5),
    Sketcher.Constraint("DistanceX", 1, 1, 1, 2, Q("7 mm")),
    Sketcher.Constraint("DistanceX", 3, 1, 3, 2, Q("40 mm")),
    Sketcher.Constraint("DistanceY", 0, 1, 0, 2, Q("76 mm")),
    Sketcher.Constraint("DistanceY", 2, 2, 2, 1, Q("1.798882 mm")),
    Sketcher.Constraint("DistanceY", -1, 1, 0, 2, Q("38.899441 mm")),
])
pocket12 = body.newObject("PartDesign::Pocket", "Pocket011")
pocket12.Profile = sketch18
pocket12.Length = 6
pocket12.Reversed = True

# Sketch on XZ plane
sketch19 = body.newObject("Sketcher::SketchObject", "Sketch018")
sketch19.AttachmentSupport = (doc.getObject("XZ_Plane"), [""])
sketch19.MapMode = "FlatFace"
sketch19.AttachmentOffset = App.Placement(V(0, 0, -37.100559), App.Rotation())
sketch19.addGeometry(Part.Circle(V(0, 36, 0), V(0, 0, 1), 9), False)
sketch19.addConstraint([
    Sketcher.Constraint("PointOnObject", 0, 3, -2),
    Sketcher.Constraint("Diameter", 0, Q("17.03725 mm")),
    Sketcher.Constraint("DistanceY", -1, 1, 0, 3, Q("36.4884 mm")),
])
pad7 = body.newObject("PartDesign::Pad", "Pad006")
pad7.Profile = sketch19
pad7.Length = 13
pad7.Reversed = True

# Sketch on XZ plane
sketch20 = body.newObject("Sketcher::SketchObject", "Sketch019")
sketch20.AttachmentSupport = (doc.getObject("XZ_Plane"), [""])
sketch20.MapMode = "FlatFace"
sketch20.AttachmentOffset = App.Placement(V(0, 0, -50.100559), App.Rotation())
sketch20.addGeometry(Part.Circle(V(0, 36.5, 0), V(0, 0, 1), 3.5), False)
sketch20.addConstraint([
    Sketcher.Constraint("PointOnObject", 0, 3, -2),
    Sketcher.Constraint("Diameter", 0, Q("7 mm")),
    Sketcher.Constraint("DistanceY", -1, 1, 0, 3, Q("36.4884 mm")),
])
pocket13 = body.newObject("PartDesign::Pocket", "Pocket012")
pocket13.Profile = sketch20
pocket13.Length = 15
pocket13.Reversed = True

# Sketch on XZ plane
sketch21 = body.newObject("Sketcher::SketchObject", "Sketch020")
sketch21.AttachmentSupport = (doc.getObject("XZ_Plane"), [""])
sketch21.MapMode = "FlatFace"
sketch21.AttachmentOffset = App.Placement(V(0, 0, 102.100559), App.Rotation())
sketch21.addGeometry(Part.Circle(V(0, 58, 0), V(0, 0, 1), 0.8), False)
sketch21.addConstraint([
    Sketcher.Constraint("PointOnObject", 0, 3, -2),
    Sketcher.Constraint("Diameter", 0, Q("1.5 mm")),
    Sketcher.Constraint("DistanceY", -1, 1, 0, 3, Q("57.966856 mm")),
])
pocket14 = body.newObject("PartDesign::Pocket", "Pocket013")
pocket14.Profile = sketch21
pocket14.Length = 40

# Sketch on XY plane
sketch22 = body.newObject("Sketcher::SketchObject", "Sketch021")
sketch22.AttachmentSupport = (doc.getObject("XY_Plane"), [""])
sketch22.MapMode = "FlatFace"
sketch22.addGeometry([
    Part.LineSegment(V(27, 6, 0), V(27, 18, 0)),
    Part.LineSegment(V(27, 18, 0), V(32, 18, 0)),
    Part.LineSegment(V(32, 18, 0), V(32, 6, 0)),
    Part.LineSegment(V(32, 6, 0), V(27, 6, 0)),
], False)
sketch22.addConstraint([
    Sketcher.Constraint("Coincident", 0, 2, 1, 1),
    Sketcher.Constraint("Coincident", 1, 2, 2, 1),
    Sketcher.Constraint("Coincident", 2, 2, 3, 1),
    Sketcher.Constraint("Coincident", 3, 2, 0, 1),
    Sketcher.Constraint("Vertical", 0),
    Sketcher.Constraint("Horizontal", 1),
    Sketcher.Constraint("Vertical", 2),
    Sketcher.Constraint("Horizontal", 3),
    Sketcher.Constraint("DistanceY", 0, 1, 0, 2, Q("12 mm")),
    Sketcher.Constraint("DistanceX", 1, 1, 1, 2, Q("5.5 mm")),
    Sketcher.Constraint("DistanceX", -1, 1, 0, 2, Q("27 mm")),
    Sketcher.Constraint("DistanceY", -1, 1, 0, 2, Q("17.899441 mm")),
])
pocket15 = body.newObject("PartDesign::Pocket", "Pocket014")
pocket15.Profile = sketch22
pocket15.Length = 5
pocket15.Reversed = True

# Sketch on XY plane
sketch23 = body.newObject("Sketcher::SketchObject", "Sketch022")
sketch23.AttachmentSupport = (doc.getObject("XY_Plane"), [""])
sketch23.MapMode = "FlatFace"
sketch23.AttachmentOffset = App.Placement(V(0, 0, 5), App.Rotation())
sketch23.addGeometry([
    Part.LineSegment(V(-32, 18, 0), V(-27, 18, 0)),
    Part.LineSegment(V(-27, 18, 0), V(-27, 6, 0)),
    Part.LineSegment(V(-27, 6, 0), V(-32, 6, 0)),
    Part.LineSegment(V(-32, 6, 0), V(-32, 18, 0)),
], False)
sketch23.addConstraint([
    Sketcher.Constraint("Coincident", 0, 2, 1, 1),
    Sketcher.Constraint("Coincident", 1, 2, 2, 1),
    Sketcher.Constraint("Coincident", 2, 2, 3, 1),
    Sketcher.Constraint("Coincident", 3, 2, 0, 1),
    Sketcher.Constraint("Horizontal", 0),
    Sketcher.Constraint("Vertical", 1),
    Sketcher.Constraint("Horizontal", 2),
    Sketcher.Constraint("Vertical", 3),
    Sketcher.Constraint("DistanceY", 1, 2, 1, 1, Q("12 mm")),
    Sketcher.Constraint("DistanceX", 0, 1, 0, 2, Q("5.5 mm")),
    Sketcher.Constraint("DistanceX", 0, 2, -1, 1, Q("27 mm")),
    Sketcher.Constraint("DistanceY", -1, 1, 0, 2, Q("17.899441 mm")),
])
pad8 = body.newObject("PartDesign::Pad", "Pad007")
pad8.Profile = sketch23
pad8.Length = 5
pad8.Reversed = True

# Sketch on XZ plane
sketch24 = body.newObject("Sketcher::SketchObject", "Sketch023")
sketch24.AttachmentSupport = (doc.getObject("XZ_Plane"), [""])
sketch24.MapMode = "FlatFace"
sketch24.addGeometry([
    Part.LineSegment(V(-36, 23, 0), V(-30, 17, 0)),  # 0
    Part.LineSegment(V(-30, 17, 0), V(-23, 19, 0)),  # 1
    Part.LineSegment(V(-23, 19, 0), V(-27, 35, 0)),  # 2
    Part.LineSegment(V(-27, 35, 0), V(-32, 35, 0)),  # 3
    Part.LineSegment(V(-32, 35, 0), V(-36, 23, 0)),  # 4
], False)
sketch24.addConstraint([
    Sketcher.Constraint("Coincident", 0, 2, 1, 1),
    Sketcher.Constraint("Coincident", 1, 2, 2, 1),
    Sketcher.Constraint("Coincident", 2, 2, 3, 1),
    Sketcher.Constraint("Coincident", 3, 2, 4, 1),
    Sketcher.Constraint("Coincident", 4, 2, 0, 1),
    Sketcher.Constraint("Horizontal", 3),
    Sketcher.Constraint("Angle", 0, Q("-45 deg")),
    Sketcher.Constraint("DistanceX", 2, 2, -1, 1, Q("27 mm")),
    Sketcher.Constraint("DistanceY", -1, 1, 2, 2, Q("35 mm")),
    Sketcher.Constraint("DistanceX", 0, 2, -1, 1, Q("29.5 mm")),
    Sketcher.Constraint("DistanceX", 4, 2, 3, 2, Q("3.872798 mm")),
    Sketcher.Constraint("DistanceX", 3, 2, 3, 1, Q("5.155087 mm")),
    Sketcher.Constraint("DistanceY", -1, 1, 0, 2, Q("16.85372 mm")),
    Sketcher.Constraint("DistanceX", 3, 2, 1, 2, Q("8.766011 mm")),
    Sketcher.Constraint("Distance", 1, Q("6.423537 mm")),
])
pocket16 = body.newObject("PartDesign::Pocket", "Pocket015")
pocket16.Profile = sketch24
pocket16.Type = "TwoLengths"
pocket16.Length = 38.88
pocket16.Length2 = 37
doc.recompute()

mirrored10 = body.newObject("PartDesign::Mirrored", "Mirrored009")
mirrored10.Originals = [pocket16]
mirrored10.MirrorPlane = (doc.getObject("YZ_Plane"), [""])
body.Tip = mirrored10

# Sketch on XZ plane
sketch25 = body.newObject("Sketcher::SketchObject", "Sketch024")
sketch25.AttachmentSupport = (doc.getObject("XZ_Plane"), [""])
sketch25.MapMode = "FlatFace"
sketch25.AttachmentOffset = App.Placement(V(0, 0, -71), App.Rotation())
sketch25.addGeometry([
    Part.Circle(V(-15, 7.1, 0), V(0, 0, 1), 3),
    Part.Circle(V(15, 7.1, 0), V(0, 0, 1), 3),
], False)
sketch25.addConstraint([
    Sketcher.Constraint("Equal", 0, 1),
    Sketcher.Constraint("Symmetric", 0, 3, 1, 3, -2),
    Sketcher.Constraint("Diameter", 0, Q("6 mm")),
    Sketcher.Constraint("DistanceX", 0, 3, -1, 1, Q("15 mm")),
    Sketcher.Constraint("DistanceY", -1, 1, 0, 3, Q("7.114491 mm")),
])
pocket17 = body.newObject("PartDesign::Pocket", "Pocket016")
pocket17.Profile = sketch25
pocket17.Type = "ThroughAll"
pocket17.Reversed = True

# Sketch on XZ plane
sketch26 = body.newObject("Sketcher::SketchObject", "Sketch025")
sketch26.AttachmentSupport = (doc.getObject("XZ_Plane"), [""])
sketch26.MapMode = "FlatFace"
sketch26.AttachmentOffset = App.Placement(V(0, 0, 102.100559), App.Rotation())
sketch26.addGeometry(Part.Circle(V(0, 36.8, 0), V(0, 0, 1), 0.8), False)
sketch26.addConstraint([
    Sketcher.Constraint("PointOnObject", 0, 3, -2),
    Sketcher.Constraint("Diameter", 0, Q("1.5 mm")),
    Sketcher.Constraint("DistanceY", -1, 1, 0, 3, Q("36.759459 mm")),
])
pocket18 = body.newObject("PartDesign::Pocket", "Pocket017")
pocket18.Profile = sketch26
pocket18.Length = 30

doc.recompute()
